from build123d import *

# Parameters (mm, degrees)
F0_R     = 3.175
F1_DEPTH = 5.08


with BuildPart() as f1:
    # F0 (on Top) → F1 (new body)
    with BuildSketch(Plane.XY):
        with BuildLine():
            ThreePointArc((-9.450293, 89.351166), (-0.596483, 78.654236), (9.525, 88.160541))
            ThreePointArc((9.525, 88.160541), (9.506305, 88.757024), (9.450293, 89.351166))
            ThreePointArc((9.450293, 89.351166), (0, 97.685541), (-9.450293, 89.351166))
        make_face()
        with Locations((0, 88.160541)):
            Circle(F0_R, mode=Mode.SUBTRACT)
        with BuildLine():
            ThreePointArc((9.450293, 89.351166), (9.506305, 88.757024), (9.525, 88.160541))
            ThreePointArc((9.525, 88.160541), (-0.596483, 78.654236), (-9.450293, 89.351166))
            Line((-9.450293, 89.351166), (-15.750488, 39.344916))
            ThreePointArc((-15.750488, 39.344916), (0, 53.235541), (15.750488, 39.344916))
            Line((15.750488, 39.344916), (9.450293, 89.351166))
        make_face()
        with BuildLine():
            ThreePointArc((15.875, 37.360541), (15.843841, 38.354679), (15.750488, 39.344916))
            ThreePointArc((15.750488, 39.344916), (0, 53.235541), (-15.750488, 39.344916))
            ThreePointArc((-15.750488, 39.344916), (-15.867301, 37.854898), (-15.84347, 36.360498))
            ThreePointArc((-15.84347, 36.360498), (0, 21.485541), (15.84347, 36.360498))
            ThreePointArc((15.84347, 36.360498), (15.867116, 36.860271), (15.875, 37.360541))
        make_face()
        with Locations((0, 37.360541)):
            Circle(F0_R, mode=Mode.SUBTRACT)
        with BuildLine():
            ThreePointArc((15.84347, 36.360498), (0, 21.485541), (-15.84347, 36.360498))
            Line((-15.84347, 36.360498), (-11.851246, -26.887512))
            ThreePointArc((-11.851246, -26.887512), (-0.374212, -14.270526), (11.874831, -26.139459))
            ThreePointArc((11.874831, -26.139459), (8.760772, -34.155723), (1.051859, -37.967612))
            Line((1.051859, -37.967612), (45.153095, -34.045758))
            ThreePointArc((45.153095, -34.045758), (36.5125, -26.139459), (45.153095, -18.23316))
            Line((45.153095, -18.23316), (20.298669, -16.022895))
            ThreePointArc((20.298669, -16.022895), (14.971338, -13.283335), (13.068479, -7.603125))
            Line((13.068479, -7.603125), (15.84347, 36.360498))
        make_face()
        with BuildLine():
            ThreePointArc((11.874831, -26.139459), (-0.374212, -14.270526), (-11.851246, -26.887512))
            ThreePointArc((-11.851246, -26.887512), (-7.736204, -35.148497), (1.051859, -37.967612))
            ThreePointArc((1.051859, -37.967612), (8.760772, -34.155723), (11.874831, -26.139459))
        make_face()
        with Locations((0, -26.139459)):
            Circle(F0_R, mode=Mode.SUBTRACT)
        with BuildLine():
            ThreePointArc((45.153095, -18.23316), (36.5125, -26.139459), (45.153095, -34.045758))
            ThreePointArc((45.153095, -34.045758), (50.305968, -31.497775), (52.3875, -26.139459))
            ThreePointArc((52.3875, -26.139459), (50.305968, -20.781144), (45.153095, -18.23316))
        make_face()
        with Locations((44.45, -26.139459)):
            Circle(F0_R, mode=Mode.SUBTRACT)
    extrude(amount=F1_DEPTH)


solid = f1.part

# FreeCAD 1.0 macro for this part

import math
import FreeCAD as App
import Part
import Sketcher
Q = App.Units.Quantity

doc = App.newDocument("Part")
body = doc.addObject("PartDesign::Body", "Body")

sketch1 = body.newObject("Sketcher::SketchObject", "Sketch")
sketch1.AttachmentSupport = (doc.getObject("XY_Plane"), [""])
sketch1.MapMode = "FlatFace"
sketch1.addGeometry([
    Part.ArcOfCircle(Part.Circle(App.Vector(0, 88.160541, 0), App.Vector(0, 0, 1), 9.525), math.radians(7.180756), math.radians(172.819244)),
    Part.LineSegment(App.Vector(-9.450293, 89.351166, 0), App.Vector(-15.750488, 39.344916, 0)),
    Part.ArcOfCircle(Part.Circle(App.Vector(-0.000056, 37.360541, 0), App.Vector(0, 0, 1), 15.874944), math.radians(172.819218), math.radians(183.611742)),
    Part.LineSegment(App.Vector(-15.84347, 36.360498, 0), App.Vector(-11.851246, -26.887512, 0)),
    Part.ArcOfCircle(Part.Circle(App.Vector(-0.000001, -26.139459, 0), App.Vector(0, 0, 1), 11.874831), math.radians(-176.388273), math.radians(-84.918142)),
    Part.LineSegment(App.Vector(1.051859, -37.967612, 0), App.Vector(45.153095, -34.045758, 0)),
    Part.ArcOfCircle(Part.Circle(App.Vector(44.450001, -26.13946, 0), App.Vector(0, 0, 1), 7.937499), math.radians(-84.918149), math.radians(0.000006)),
    Part.ArcOfCircle(Part.Circle(App.Vector(44.449999, -26.13946, 0), App.Vector(0, 0, 1), 7.937501), math.radians(0.000006), math.radians(84.918136)),
    Part.LineSegment(App.Vector(45.153095, -18.23316, 0), App.Vector(20.298669, -16.022895, 0)),
    Part.ArcOfCircle(Part.Circle(App.Vector(21.002889, -8.103945, 0), App.Vector(0, 0, 1), 7.950201), math.radians(176.388279), math.radians(264.918139)),
    Part.LineSegment(App.Vector(13.068479, -7.603125, 0), App.Vector(15.84347, 36.360498, 0)),
    Part.ArcOfCircle(Part.Circle(App.Vector(0.000882, 37.360512, 0), App.Vector(0, 0, 1), 15.874118), math.radians(-3.611825), math.radians(0.000105)),
    Part.ArcOfCircle(Part.Circle(App.Vector(-0.000203, 37.360526, 0), App.Vector(0, 0, 1), 15.875203), math.radians(0.000054), math.radians(7.180718)),
    Part.LineSegment(App.Vector(15.750488, 39.344916, 0), App.Vector(9.450293, 89.351166, 0)),
    Part.Circle(App.Vector(0, -26.139459, 0), App.Vector(0, 0, 1), 3.175),
    Part.Circle(App.Vector(44.45, -26.139459, 0), App.Vector(0, 0, 1), 3.175),
    Part.Circle(App.Vector(0, 37.360541, 0), App.Vector(0, 0, 1), 3.175),
    Part.Circle(App.Vector(0, 88.160541, 0), App.Vector(0, 0, 1), 3.175),
], False)
sketch1.addConstraint([
    Sketcher.Constraint("Coincident", 0, 2, 1, 1),
    Sketcher.Constraint("Coincident", 1, 2, 2, 1),
    Sketcher.Constraint("Coincident", 2, 2, 3, 1),
    Sketcher.Constraint("Coincident", 3, 2, 4, 1),
    Sketcher.Constraint("Coincident", 4, 2, 5, 1),
    Sketcher.Constraint("Coincident", 5, 2, 6, 1),
    Sketcher.Constraint("Coincident", 6, 2, 7, 1),
    Sketcher.Constraint("Coincident", 7, 2, 8, 1),
    Sketcher.Constraint("Coincident", 8, 2, 9, 2),
    Sketcher.Constraint("Coincident", 9, 1, 10, 1),
    Sketcher.Constraint("Coincident", 10, 2, 11, 1),
    Sketcher.Constraint("Coincident", 11, 2, 12, 1),
    Sketcher.Constraint("Coincident", 12, 2, 13, 1),
    Sketcher.Constraint("Coincident", 13, 2, 0, 1),
    Sketcher.Constraint("Coincident", 7, 3, 6, 3),
    Sketcher.Constraint("Coincident", 14, 3, 4, 3),
    Sketcher.Constraint("Coincident", 15, 3, 6, 3),
    Sketcher.Constraint("Coincident", 17, 3, 0, 3),
    Sketcher.Constraint("PointOnObject", 0, 3, -2),
    Sketcher.Constraint("PointOnObject", 4, 3, -2),
    Sketcher.Constraint("PointOnObject", 16, 3, -2),
    Sketcher.Constraint("Diameter", 14, Q("0.25 in")),
    Sketcher.Constraint("Diameter", 15, Q("0.25 in")),
    Sketcher.Constraint("Diameter", 16, Q("0.25 in")),
    Sketcher.Constraint("Diameter", 17, Q("0.25 in")),
    Sketcher.Constraint("Radius", 0, Q("0.375 in")),
    Sketcher.Constraint("Radius", 6, Q("0.3125 in")),
    Sketcher.Constraint("Radius", 9, Q("0.313 in")),
    Sketcher.Constraint("DistanceY", 2, 3, 0, 3, Q("2 in")),
    Sketcher.Constraint("DistanceY", 16, 3, 0, 3, Q("2 in")),
    Sketcher.Constraint("DistanceY", 4, 3, 2, 3, Q("2.5 in")),
    Sketcher.Constraint("DistanceY", 6, 3, 2, 3, Q("2.5 in")),
    Sketcher.Constraint("DistanceX", -1, 1, 6, 3, Q("1.75 in")),
    Sketcher.Constraint("DistanceX", -1, 1, 11, 2, Q("0.625 in")),
    Sketcher.Constraint("Radius", 4, 11.874831),
    Sketcher.Constraint("Radius", 11, 15.874118),
    Sketcher.Constraint("DistanceY", 17, 3, 0, 2, Q("0.046875 in")),
    Sketcher.Constraint("DistanceY", 2, 3, 1, 2, Q("0.078125 in")),
    Sketcher.Constraint("DistanceY", 11, 2, 12, 2, Q("0.078125 in")),
    Sketcher.Constraint("DistanceY", 16, 3, 12, 2, Q("0.078125 in")),
    Sketcher.Constraint("DistanceY", 17, 3, 13, 2, Q("0.046875 in")),
    Sketcher.Constraint("Radius", 2, 15.874944),
    Sketcher.Constraint("Radius", 12, 15.875203),
    Sketcher.Constraint("DistanceX", 2, 3, 12, 2, Q("0.6201002 in")),
    Sketcher.Constraint("DistanceY", -1, 1, 2, 2, 36.360498),
    Sketcher.Constraint("DistanceY", 4, 2, 3, 2, 11.0801),
    Sketcher.Constraint("DistanceY", 5, 2, 6, 3, 7.906298),
    Sketcher.Constraint("DistanceY", 5, 2, 6, 2, 7.906299),
    Sketcher.Constraint("DistanceY", 15, 3, 7, 2, 7.906299),
    Sketcher.Constraint("Distance", 3, 63.37388),
    Sketcher.Constraint("Distance", 8, 24.95251),
    Sketcher.Constraint("DistanceY", -1, 1, 0, 3, 88.160541),
    Sketcher.Constraint("DistanceX", -1, 1, 9, 3, 21.002889),
    Sketcher.Constraint("DistanceY", -1, 1, 11, 3, 37.360512),
    Sketcher.Constraint("DistanceX", 1, 2, -1, 1, 15.750488),
    Sketcher.Constraint("DistanceX", -1, 1, 8, 2, 20.298669),
    Sketcher.Constraint("DistanceX", -1, 1, 9, 1, 13.068479),
    Sketcher.Constraint("DistanceX", -1, 1, 10, 2, 15.84347),
])
pad1 = body.newObject("PartDesign::Pad", "Pad")
pad1.Profile = sketch1
pad1.Length = Q("0.2 in")

doc.recompute()
